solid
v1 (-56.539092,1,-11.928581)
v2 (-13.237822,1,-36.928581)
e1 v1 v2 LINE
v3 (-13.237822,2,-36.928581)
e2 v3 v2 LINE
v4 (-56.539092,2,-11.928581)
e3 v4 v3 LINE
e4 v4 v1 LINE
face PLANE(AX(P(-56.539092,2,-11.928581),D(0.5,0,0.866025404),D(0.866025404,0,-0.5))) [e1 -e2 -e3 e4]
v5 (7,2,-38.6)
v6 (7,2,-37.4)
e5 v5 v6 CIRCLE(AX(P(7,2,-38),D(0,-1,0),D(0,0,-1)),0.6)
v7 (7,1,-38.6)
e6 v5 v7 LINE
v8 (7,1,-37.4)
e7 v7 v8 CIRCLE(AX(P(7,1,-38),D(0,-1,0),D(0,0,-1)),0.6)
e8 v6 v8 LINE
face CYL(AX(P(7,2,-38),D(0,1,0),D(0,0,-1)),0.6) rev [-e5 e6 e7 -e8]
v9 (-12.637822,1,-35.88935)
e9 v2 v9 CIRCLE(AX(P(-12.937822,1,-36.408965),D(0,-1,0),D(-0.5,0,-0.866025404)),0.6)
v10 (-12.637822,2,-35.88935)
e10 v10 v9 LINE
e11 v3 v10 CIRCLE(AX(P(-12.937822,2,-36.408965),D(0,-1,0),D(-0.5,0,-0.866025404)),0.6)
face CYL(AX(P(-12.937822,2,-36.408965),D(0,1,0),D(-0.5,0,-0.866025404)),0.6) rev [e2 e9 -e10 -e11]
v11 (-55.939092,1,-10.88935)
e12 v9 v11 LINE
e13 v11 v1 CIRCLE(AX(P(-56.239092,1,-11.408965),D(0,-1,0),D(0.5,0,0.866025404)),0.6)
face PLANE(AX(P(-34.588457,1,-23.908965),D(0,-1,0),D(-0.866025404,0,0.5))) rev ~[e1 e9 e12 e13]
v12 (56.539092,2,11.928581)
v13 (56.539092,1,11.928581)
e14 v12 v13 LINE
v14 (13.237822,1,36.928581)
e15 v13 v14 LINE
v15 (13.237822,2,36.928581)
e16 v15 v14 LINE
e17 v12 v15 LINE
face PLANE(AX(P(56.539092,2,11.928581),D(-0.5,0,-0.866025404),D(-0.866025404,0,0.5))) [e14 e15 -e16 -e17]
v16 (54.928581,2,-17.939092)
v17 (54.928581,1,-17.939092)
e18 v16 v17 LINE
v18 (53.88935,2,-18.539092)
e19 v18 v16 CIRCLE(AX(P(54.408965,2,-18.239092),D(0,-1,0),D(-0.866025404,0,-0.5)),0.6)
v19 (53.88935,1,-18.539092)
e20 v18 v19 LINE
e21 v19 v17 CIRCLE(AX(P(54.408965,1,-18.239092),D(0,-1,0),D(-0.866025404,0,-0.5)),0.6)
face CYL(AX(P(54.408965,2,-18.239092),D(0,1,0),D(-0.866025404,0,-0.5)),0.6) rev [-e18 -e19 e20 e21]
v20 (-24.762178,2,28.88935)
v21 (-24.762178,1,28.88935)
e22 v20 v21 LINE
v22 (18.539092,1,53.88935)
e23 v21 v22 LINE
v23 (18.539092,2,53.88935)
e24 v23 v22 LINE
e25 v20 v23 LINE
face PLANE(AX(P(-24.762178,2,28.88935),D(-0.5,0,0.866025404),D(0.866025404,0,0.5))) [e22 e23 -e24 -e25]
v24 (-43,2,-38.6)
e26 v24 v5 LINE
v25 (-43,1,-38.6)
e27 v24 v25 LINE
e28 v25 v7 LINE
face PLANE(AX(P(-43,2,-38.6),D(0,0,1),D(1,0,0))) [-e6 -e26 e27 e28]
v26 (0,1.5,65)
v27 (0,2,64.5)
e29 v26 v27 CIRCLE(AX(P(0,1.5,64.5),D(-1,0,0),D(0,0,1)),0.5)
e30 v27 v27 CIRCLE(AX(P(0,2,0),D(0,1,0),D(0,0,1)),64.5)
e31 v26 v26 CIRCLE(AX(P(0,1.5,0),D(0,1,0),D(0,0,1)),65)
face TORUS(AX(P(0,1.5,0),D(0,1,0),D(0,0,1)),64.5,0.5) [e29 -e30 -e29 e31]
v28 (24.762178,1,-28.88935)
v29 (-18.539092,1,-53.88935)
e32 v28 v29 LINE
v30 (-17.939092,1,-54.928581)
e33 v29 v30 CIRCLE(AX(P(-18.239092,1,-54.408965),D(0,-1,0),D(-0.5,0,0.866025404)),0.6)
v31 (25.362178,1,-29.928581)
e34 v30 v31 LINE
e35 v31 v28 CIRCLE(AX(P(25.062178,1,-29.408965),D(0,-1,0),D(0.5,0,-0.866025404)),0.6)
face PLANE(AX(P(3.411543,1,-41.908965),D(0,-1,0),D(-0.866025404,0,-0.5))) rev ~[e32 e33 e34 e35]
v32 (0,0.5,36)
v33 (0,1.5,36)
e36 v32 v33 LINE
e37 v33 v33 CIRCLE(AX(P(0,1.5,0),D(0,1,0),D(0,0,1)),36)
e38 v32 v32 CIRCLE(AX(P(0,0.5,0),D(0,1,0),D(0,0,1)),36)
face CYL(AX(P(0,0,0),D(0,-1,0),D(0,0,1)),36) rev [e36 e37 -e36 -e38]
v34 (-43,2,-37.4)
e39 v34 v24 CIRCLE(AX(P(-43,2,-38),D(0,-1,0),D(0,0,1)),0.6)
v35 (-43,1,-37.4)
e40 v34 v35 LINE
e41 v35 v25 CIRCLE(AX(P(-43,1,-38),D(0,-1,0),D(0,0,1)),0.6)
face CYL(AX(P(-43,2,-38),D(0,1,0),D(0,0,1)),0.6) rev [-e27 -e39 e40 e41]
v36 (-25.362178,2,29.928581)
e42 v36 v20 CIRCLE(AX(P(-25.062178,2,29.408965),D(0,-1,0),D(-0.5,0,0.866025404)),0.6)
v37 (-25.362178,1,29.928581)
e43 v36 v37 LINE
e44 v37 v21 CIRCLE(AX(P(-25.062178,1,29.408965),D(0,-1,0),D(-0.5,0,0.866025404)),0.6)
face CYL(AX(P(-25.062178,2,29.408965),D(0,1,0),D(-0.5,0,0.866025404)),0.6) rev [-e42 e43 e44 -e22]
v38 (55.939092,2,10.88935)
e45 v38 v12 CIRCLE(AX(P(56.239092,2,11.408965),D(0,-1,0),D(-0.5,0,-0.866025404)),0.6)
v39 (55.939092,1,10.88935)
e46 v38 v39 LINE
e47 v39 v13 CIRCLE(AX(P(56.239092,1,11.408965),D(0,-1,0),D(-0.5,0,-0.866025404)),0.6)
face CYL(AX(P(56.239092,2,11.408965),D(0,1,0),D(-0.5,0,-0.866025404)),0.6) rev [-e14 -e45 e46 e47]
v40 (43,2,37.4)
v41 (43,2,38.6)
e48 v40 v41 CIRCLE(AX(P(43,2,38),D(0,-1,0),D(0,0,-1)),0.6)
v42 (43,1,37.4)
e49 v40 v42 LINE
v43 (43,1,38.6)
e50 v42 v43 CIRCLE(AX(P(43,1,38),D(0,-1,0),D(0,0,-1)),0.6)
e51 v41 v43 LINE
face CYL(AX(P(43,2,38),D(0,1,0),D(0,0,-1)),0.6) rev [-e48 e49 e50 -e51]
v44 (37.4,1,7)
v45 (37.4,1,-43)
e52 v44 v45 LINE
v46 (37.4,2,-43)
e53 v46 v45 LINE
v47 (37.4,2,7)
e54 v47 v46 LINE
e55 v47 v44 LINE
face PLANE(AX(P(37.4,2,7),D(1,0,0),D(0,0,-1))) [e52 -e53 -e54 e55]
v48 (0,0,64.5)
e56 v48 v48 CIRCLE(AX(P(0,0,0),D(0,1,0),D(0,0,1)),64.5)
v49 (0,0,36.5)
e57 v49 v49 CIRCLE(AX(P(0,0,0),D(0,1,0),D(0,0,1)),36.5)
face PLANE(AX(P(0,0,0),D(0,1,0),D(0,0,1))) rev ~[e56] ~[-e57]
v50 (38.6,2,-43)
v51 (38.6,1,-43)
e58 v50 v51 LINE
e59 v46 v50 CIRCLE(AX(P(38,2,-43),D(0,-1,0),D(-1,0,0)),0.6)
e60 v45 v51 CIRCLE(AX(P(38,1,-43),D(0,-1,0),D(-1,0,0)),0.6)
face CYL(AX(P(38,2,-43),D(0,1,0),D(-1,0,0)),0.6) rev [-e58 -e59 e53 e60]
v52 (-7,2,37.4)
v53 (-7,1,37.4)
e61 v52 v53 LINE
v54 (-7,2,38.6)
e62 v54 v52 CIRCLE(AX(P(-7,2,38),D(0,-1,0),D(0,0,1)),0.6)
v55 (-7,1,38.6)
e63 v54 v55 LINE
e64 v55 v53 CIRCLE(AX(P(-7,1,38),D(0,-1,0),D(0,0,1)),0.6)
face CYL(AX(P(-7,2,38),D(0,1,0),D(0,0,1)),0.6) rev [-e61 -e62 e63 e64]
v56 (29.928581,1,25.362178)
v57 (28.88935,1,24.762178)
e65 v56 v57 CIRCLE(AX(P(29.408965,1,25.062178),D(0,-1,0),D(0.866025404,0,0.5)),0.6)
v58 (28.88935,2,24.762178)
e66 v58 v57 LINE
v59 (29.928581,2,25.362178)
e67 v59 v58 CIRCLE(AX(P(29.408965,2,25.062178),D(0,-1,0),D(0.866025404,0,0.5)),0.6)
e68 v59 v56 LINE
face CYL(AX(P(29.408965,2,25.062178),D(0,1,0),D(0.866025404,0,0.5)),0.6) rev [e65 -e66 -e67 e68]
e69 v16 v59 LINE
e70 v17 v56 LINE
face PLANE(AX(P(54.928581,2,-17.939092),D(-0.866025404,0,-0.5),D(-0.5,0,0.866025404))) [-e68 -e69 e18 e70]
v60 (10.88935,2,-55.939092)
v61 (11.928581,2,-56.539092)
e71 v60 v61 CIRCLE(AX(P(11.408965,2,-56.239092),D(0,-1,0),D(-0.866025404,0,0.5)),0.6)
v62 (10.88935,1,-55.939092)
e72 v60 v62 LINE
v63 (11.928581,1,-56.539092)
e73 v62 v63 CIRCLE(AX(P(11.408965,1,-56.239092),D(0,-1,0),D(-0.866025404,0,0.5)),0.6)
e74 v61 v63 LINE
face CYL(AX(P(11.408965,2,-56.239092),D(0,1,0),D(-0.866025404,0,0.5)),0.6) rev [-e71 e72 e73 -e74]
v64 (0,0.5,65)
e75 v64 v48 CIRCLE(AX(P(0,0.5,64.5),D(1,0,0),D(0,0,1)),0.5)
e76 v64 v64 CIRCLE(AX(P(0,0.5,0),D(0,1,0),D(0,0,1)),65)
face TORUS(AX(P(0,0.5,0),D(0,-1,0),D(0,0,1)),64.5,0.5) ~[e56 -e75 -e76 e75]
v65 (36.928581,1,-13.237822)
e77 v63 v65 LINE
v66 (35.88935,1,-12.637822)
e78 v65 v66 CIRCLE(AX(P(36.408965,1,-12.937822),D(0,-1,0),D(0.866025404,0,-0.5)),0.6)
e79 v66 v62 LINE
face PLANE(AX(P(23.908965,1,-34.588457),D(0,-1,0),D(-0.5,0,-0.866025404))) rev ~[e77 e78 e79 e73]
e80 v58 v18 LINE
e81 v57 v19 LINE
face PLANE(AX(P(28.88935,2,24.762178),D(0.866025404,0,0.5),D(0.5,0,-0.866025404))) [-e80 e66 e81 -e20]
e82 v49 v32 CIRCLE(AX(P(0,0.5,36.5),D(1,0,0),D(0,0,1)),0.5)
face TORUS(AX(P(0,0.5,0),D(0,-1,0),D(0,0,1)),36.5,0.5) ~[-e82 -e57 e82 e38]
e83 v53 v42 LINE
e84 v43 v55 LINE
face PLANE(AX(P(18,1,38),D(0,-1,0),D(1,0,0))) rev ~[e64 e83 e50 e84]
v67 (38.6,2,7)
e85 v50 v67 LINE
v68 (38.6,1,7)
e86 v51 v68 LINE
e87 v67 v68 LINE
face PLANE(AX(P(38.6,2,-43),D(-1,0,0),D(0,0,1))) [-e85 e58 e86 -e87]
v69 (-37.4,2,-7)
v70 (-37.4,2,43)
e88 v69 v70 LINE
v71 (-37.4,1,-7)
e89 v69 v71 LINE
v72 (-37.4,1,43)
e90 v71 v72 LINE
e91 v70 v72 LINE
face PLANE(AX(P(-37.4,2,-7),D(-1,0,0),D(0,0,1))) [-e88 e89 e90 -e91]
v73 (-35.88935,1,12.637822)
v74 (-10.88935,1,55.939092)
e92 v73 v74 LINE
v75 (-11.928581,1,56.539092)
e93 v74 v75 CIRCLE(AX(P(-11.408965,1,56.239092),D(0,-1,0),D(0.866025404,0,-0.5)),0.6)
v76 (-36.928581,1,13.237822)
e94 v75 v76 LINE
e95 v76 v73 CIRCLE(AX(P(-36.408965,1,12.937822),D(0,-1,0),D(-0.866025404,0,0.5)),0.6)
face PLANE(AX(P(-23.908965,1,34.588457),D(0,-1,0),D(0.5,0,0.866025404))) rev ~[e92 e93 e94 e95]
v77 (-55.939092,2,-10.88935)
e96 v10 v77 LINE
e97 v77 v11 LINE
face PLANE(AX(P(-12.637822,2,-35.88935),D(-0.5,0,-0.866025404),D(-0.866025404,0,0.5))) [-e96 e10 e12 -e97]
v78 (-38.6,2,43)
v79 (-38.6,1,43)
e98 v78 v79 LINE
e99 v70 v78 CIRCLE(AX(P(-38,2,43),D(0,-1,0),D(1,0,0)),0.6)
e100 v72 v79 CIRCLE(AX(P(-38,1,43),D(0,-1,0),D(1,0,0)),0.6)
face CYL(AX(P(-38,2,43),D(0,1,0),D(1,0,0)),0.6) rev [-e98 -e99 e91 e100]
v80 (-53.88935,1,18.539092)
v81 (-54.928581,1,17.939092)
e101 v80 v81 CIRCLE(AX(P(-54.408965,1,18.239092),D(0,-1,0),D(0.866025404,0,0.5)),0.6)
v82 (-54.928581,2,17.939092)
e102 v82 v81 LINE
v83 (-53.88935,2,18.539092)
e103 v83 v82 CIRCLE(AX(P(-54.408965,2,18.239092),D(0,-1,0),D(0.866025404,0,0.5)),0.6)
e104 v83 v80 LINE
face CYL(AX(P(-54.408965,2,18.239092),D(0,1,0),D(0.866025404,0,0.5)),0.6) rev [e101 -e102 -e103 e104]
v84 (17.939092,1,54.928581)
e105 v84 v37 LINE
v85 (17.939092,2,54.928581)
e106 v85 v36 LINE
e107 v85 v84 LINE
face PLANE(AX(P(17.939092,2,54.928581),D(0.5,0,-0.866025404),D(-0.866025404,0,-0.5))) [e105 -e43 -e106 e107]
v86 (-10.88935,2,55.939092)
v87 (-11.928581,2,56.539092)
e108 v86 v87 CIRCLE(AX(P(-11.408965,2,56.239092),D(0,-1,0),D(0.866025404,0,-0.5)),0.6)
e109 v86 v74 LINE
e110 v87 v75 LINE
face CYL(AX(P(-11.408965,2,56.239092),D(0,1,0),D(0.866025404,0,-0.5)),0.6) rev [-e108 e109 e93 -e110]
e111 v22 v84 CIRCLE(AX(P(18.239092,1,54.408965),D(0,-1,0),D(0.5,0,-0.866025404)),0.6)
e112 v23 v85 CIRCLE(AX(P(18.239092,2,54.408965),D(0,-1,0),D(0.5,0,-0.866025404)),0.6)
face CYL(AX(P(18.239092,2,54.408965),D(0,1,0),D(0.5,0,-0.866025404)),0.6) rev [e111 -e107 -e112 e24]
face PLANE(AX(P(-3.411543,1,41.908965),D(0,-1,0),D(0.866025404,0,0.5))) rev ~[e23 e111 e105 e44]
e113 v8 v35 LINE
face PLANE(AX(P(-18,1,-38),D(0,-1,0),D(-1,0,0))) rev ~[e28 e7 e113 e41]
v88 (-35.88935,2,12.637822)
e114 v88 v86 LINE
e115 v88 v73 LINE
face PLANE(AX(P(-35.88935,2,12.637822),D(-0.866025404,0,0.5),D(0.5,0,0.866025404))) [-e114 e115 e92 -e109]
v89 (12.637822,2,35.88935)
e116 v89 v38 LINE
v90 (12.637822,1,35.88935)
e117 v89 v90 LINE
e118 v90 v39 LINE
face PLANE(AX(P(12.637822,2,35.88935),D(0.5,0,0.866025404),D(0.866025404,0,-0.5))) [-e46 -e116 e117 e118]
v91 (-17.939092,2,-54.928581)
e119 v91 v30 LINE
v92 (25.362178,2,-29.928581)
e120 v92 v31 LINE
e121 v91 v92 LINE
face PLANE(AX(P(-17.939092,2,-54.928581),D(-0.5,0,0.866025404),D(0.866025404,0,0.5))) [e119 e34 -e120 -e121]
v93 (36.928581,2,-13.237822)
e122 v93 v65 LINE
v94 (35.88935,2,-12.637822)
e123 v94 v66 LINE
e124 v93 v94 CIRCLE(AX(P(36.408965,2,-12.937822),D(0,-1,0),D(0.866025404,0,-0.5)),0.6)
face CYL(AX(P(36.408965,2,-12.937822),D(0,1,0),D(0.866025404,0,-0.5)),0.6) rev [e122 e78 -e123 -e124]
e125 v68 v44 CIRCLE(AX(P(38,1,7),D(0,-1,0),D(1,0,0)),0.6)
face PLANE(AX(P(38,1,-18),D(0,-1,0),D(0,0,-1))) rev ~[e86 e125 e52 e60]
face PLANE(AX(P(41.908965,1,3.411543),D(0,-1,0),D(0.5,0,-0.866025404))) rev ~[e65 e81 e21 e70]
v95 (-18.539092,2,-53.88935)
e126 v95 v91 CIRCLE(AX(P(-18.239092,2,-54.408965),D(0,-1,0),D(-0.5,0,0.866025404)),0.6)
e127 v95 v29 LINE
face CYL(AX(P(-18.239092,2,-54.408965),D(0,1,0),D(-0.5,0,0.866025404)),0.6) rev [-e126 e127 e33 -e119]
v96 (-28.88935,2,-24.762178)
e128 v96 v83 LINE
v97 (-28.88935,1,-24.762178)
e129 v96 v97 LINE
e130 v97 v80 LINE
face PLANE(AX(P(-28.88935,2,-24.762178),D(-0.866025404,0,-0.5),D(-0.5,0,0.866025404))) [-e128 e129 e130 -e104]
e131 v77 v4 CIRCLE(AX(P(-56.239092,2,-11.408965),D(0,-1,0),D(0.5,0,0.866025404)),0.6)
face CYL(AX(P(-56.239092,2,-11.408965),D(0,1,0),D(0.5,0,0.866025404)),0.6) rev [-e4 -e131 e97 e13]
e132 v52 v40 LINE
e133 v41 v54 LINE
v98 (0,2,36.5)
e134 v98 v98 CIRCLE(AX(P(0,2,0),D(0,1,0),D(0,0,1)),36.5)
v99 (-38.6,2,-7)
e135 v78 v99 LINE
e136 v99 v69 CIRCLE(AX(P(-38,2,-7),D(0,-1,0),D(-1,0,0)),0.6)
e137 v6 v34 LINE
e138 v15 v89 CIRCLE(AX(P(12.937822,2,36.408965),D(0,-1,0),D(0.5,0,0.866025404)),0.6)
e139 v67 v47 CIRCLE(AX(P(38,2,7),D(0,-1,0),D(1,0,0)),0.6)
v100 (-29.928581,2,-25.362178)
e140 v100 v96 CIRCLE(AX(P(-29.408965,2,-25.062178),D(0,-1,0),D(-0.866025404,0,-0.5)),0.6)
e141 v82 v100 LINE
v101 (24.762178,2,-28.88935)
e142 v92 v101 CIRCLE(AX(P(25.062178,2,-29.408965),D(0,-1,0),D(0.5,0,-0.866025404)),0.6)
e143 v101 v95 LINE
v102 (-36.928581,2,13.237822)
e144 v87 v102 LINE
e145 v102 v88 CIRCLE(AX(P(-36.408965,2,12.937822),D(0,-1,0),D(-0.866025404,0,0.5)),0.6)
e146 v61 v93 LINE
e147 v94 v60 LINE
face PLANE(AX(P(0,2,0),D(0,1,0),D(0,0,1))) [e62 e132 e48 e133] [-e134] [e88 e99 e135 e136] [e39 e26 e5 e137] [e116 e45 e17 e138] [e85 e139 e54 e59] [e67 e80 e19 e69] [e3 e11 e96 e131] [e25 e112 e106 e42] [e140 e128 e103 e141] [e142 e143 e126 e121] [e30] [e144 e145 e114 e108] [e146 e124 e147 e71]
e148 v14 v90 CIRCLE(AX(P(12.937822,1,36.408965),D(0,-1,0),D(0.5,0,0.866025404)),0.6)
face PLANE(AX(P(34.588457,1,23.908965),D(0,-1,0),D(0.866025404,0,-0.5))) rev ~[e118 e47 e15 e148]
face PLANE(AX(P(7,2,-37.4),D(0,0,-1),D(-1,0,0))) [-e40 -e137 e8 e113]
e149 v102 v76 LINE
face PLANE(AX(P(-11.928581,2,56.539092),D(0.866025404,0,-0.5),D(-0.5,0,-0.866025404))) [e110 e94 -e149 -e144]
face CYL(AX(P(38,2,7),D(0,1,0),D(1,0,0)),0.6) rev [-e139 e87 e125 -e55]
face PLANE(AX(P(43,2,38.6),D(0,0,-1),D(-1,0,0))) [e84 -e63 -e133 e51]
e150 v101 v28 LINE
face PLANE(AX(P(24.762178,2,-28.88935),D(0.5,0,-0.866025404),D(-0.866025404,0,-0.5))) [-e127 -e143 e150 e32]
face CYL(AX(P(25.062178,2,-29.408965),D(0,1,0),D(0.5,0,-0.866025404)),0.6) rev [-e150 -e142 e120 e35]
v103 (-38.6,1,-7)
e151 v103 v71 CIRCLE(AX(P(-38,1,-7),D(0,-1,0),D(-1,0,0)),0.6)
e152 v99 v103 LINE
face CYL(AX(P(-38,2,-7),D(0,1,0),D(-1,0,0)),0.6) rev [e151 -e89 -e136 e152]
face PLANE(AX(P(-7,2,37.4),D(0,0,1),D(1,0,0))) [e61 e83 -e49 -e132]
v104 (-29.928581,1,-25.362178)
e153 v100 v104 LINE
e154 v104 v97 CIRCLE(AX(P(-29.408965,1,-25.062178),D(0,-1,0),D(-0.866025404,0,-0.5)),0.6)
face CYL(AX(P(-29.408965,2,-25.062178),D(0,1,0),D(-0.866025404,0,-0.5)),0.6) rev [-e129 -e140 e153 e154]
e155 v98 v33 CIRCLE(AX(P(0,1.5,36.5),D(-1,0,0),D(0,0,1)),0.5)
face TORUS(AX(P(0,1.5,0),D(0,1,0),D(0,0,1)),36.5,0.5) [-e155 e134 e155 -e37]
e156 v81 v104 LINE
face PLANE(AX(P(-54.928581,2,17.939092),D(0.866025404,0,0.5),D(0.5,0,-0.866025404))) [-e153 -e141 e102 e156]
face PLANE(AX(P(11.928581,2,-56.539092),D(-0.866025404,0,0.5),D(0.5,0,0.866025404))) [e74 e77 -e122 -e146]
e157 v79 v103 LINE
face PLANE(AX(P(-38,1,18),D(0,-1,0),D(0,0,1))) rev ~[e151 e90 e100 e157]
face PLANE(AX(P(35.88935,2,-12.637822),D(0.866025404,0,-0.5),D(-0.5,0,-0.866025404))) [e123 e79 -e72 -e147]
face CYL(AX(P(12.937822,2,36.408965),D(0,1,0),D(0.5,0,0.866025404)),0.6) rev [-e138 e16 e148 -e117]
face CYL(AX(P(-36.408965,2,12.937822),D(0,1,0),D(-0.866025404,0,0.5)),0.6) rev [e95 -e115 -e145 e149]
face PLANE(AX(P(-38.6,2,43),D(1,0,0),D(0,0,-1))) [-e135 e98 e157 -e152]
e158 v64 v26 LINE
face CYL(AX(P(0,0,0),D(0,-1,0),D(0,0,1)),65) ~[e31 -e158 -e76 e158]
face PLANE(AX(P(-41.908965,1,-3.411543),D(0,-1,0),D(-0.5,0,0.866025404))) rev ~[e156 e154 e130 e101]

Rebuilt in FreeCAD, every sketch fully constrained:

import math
import FreeCAD as App
import Part
import Sketcher


def edges_at(feature, points):
    """Names of the edges that pass closest to the given points."""
    edges = feature.Shape.Edges
    near = lambda p: min(range(len(edges)), key=lambda i: edges[i].distToShape(Part.Vertex(*p))[0])
    return sorted({f"Edge{near(p) + 1}" for p in points})

doc = App.newDocument("Part")
body = doc.addObject("PartDesign::Body", "Body")

# Sketch on XZ plane
sketch1 = body.newObject("Sketcher::SketchObject", "Sketch")
sketch1.AttachmentSupport = (doc.getObject("XZ_Plane"), [""])
sketch1.MapMode = "FlatFace"
sketch1.addGeometry(Part.Circle(App.Vector(0, 0, 0), App.Vector(0, 0, 1), 65), False)
sketch1.addGeometry(Part.Circle(App.Vector(0, 0, 0), App.Vector(0, 0, 1), 36), False)
sketch1.addConstraint(Sketcher.Constraint("Coincident", 0, 3, -1, 1))
sketch1.addConstraint(Sketcher.Constraint("Coincident", 1, 3, -1, 1))
sketch1.addConstraint(Sketcher.Constraint("Diameter", 0, 130.0))
sketch1.addConstraint(Sketcher.Constraint("Diameter", 1, 72.0))
pad1 = body.newObject("PartDesign::Pad", "Pad")
pad1.Profile = sketch1
pad1.Length = 2
pad1.Reversed = True

# Sketch on XZ plane
sketch2 = body.newObject("Sketcher::SketchObject", "Sketch001")
sketch2.AttachmentSupport = (doc.getObject("XZ_Plane"), [""])
sketch2.MapMode = "FlatFace"
sketch2.AttachmentOffset = App.Placement(App.Vector(0, 0, -2), App.Rotation())
sketch2.addGeometry(Part.LineSegment(App.Vector(7, -38.6, 0), App.Vector(-43, -38.6, 0)), False)
sketch2.addGeometry(Part.ArcOfCircle(Part.Circle(App.Vector(-43, -38, 0), App.Vector(0, 0, 1), 0.6), math.radians(90), math.radians(270)), False)
sketch2.addGeometry(Part.LineSegment(App.Vector(-43, -37.4, 0), App.Vector(7, -37.4, 0)), False)
sketch2.addGeometry(Part.ArcOfCircle(Part.Circle(App.Vector(7, -38, 0), App.Vector(0, 0, 1), 0.6), math.radians(-90), math.radians(90)), False)
sketch2.addConstraint(Sketcher.Constraint("Tangent", 0, 2, 1, 2))
sketch2.addConstraint(Sketcher.Constraint("Tangent", 1, 1, 2, 1))
sketch2.addConstraint(Sketcher.Constraint("Tangent", 2, 2, 3, 2))
sketch2.addConstraint(Sketcher.Constraint("Tangent", 3, 1, 0, 1))
sketch2.addConstraint(Sketcher.Constraint("Horizontal", 0))
sketch2.addConstraint(Sketcher.Constraint("Horizontal", 2))
sketch2.addConstraint(Sketcher.Constraint("Radius", 1, 0.6))
sketch2.addConstraint(Sketcher.Constraint("DistanceX", 0, 2, 0, 1, 50.0))
sketch2.addConstraint(Sketcher.Constraint("DistanceX", 1, 3, -1, 1, 43.0))
sketch2.addConstraint(Sketcher.Constraint("DistanceY", 1, 3, -1, 1, 38.0))
pocket1 = body.newObject("PartDesign::Pocket", "Pocket")
pocket1.Profile = sketch2
pocket1.Length = 1
pocket1.Reversed = True
doc.recompute()

polarpattern = body.newObject("PartDesign::PolarPattern", "PolarPattern")
polarpattern.Originals = [pocket1]
polarpattern.Axis = (doc.getObject("Y_Axis"), [""])
polarpattern.Angle = 360
polarpattern.Occurrences = 12
body.Tip = polarpattern
doc.recompute()

fillet = body.newObject("PartDesign::Fillet", "Fillet")
fillet.Base = (polarpattern, edges_at(polarpattern, [
    (0, 0, -65),
    (0, 2, -65),
    (0, 0, -36),
    (0, 2, -36),
]))
fillet.Radius = 0.5

doc.recompute()
